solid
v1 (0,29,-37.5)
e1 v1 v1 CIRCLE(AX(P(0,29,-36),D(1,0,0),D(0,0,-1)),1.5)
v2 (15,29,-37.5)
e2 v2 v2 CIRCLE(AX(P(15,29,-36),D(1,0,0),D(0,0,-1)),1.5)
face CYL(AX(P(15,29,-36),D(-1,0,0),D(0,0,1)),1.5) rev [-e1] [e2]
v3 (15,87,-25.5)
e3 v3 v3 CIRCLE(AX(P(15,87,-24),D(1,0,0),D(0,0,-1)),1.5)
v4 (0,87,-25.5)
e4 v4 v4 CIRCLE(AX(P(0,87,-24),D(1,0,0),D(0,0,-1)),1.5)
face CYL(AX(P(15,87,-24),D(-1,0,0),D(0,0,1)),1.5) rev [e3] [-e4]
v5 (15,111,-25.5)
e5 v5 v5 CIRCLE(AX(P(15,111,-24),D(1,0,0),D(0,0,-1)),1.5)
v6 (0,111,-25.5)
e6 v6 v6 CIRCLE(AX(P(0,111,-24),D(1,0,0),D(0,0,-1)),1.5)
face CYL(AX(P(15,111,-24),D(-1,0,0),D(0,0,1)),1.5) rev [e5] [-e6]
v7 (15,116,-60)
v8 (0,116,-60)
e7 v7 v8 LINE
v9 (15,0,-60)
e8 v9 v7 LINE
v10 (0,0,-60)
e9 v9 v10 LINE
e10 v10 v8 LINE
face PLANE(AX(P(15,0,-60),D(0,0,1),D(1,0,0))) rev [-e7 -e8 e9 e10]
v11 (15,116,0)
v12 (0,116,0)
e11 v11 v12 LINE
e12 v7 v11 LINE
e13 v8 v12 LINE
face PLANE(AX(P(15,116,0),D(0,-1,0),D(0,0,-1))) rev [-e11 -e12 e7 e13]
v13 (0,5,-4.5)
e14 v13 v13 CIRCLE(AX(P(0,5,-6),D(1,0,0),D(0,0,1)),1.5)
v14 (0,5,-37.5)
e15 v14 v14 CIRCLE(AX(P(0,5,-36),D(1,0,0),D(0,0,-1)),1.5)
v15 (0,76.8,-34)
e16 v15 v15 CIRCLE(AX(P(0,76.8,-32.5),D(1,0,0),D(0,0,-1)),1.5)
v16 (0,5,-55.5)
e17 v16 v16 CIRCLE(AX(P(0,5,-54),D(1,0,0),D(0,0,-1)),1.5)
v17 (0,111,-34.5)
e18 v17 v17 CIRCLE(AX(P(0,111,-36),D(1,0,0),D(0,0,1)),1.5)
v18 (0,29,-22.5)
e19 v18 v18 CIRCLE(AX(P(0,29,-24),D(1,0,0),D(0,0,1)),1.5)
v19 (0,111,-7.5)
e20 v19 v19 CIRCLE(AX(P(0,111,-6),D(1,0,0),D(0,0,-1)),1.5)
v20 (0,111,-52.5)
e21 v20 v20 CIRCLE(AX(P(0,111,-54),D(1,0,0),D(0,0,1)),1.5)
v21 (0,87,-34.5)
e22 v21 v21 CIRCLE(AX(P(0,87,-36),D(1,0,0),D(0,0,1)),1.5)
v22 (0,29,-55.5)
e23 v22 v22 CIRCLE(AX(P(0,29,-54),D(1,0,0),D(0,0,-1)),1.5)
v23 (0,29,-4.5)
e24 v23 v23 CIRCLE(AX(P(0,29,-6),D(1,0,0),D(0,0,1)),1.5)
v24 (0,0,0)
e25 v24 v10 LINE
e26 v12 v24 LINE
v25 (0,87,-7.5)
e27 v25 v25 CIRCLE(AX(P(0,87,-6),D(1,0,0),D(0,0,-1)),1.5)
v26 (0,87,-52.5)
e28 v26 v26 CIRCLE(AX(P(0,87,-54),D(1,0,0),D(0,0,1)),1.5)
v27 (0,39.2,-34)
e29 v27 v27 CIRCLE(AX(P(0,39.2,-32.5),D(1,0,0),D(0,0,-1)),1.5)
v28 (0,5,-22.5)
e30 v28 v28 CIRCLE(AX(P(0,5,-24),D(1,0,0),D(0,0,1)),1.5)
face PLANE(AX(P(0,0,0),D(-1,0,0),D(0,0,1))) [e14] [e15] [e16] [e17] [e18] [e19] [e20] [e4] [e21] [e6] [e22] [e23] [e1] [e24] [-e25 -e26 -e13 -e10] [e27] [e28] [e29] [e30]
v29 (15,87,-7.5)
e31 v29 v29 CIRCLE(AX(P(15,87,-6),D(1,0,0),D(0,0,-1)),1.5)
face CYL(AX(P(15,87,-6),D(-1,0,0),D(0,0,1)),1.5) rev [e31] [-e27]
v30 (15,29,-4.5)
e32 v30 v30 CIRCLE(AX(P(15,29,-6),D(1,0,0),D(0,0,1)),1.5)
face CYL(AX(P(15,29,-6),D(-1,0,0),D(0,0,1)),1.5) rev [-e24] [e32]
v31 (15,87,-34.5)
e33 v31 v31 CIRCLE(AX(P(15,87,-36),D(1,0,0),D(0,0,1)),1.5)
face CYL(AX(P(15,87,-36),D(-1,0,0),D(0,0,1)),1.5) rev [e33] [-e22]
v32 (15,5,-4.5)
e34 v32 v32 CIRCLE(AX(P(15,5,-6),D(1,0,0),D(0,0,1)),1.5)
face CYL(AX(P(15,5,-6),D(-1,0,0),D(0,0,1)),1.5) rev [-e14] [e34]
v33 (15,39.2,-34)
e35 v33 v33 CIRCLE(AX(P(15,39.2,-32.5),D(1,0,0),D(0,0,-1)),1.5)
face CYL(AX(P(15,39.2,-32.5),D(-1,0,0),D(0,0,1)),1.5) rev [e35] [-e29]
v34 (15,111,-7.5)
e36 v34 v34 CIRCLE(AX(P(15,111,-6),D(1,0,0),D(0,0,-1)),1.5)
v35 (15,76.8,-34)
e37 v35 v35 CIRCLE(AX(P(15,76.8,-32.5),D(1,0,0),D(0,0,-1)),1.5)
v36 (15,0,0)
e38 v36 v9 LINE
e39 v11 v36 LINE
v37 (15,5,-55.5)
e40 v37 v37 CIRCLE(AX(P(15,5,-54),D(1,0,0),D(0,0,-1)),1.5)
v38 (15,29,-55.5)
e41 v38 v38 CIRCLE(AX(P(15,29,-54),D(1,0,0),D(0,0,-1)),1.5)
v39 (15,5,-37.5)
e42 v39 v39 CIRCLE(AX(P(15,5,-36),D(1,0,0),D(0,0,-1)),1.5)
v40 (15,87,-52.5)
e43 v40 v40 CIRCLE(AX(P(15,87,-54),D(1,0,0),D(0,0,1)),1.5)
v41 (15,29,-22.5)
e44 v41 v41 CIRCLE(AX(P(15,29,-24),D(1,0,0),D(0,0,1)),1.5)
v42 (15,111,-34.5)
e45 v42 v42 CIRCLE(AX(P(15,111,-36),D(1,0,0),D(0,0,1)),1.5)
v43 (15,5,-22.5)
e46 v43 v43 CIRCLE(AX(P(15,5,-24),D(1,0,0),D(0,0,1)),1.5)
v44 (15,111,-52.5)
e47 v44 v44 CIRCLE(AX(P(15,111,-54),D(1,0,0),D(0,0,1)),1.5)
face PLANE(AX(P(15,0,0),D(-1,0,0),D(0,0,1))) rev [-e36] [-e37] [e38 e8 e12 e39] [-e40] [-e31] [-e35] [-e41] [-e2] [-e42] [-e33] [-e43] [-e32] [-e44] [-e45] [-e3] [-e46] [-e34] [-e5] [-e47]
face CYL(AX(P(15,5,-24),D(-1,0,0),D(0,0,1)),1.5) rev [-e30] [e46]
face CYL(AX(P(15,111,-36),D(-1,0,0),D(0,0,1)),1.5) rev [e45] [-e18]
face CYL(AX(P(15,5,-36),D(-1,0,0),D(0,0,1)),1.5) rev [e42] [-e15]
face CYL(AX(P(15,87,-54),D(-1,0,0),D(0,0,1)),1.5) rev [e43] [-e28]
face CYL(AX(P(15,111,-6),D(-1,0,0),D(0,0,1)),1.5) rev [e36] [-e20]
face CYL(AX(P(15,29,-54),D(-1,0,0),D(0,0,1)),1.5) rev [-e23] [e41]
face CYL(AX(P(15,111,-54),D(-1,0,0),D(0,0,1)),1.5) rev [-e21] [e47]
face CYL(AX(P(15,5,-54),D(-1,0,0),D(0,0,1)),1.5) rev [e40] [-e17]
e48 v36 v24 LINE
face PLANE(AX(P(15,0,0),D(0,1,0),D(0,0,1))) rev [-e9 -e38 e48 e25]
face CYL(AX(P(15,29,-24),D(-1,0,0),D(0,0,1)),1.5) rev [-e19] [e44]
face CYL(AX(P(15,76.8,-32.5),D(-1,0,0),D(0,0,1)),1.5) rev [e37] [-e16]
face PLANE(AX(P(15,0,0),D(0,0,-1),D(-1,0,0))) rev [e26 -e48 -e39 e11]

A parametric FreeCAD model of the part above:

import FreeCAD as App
import Part
import Sketcher
Q = App.Units.Quantity


def add_polygon(sketch, points):
    """Adds a closed chain of lines whose ends are joined by coincident constraints."""
    first, n = sketch.GeometryCount, len(points)
    for a, b in zip(points, points[1:] + points[:1]):
        sketch.addGeometry(Part.LineSegment(App.Vector(*a, 0), App.Vector(*b, 0)), False)
    for i in range(n):
        sketch.addConstraint(Sketcher.Constraint("Coincident", first + i, 2, first + (i + 1) % n, 1))

doc = App.newDocument("Part")
body = doc.addObject("PartDesign::Body", "Body")

# Sketch on YZ plane
sketch1 = doc.addObject("Sketcher::SketchObject", "Sketch")
body.addObject(sketch1)
sketch1.AttachmentSupport = (doc.YZ_Plane, [""])
sketch1.MapMode = "FlatFace"
add_polygon(sketch1, [(116, 0), (0, 0), (0, -60), (116, -60)])  # lines 0-3
sketch1.addGeometry(Part.Circle(App.Vector(5, -6, 0), App.Vector(0, 0, 1), 1.5), False)  # 4
sketch1.addGeometry(Part.Circle(App.Vector(29, -6, 0), App.Vector(0, 0, 1), 1.5), False)  # 5
sketch1.addGeometry(Part.Circle(App.Vector(5, -24, 0), App.Vector(0, 0, 1), 1.5), False)  # 6
sketch1.addGeometry(Part.Circle(App.Vector(29, -24, 0), App.Vector(0, 0, 1), 1.5), False)  # 7
sketch1.addGeometry(Part.Circle(App.Vector(5, -36, 0), App.Vector(0, 0, 1), 1.5), False)  # 8
sketch1.addGeometry(Part.Circle(App.Vector(29, -36, 0), App.Vector(0, 0, 1), 1.5), False)  # 9
sketch1.addGeometry(Part.Circle(App.Vector(5, -54, 0), App.Vector(0, 0, 1), 1.5), False)  # 10
sketch1.addGeometry(Part.Circle(App.Vector(29, -54, 0), App.Vector(0, 0, 1), 1.5), False)  # 11
sketch1.addGeometry(Part.Circle(App.Vector(39.2, -32.5, 0), App.Vector(0, 0, 1), 1.5), False)  # 12
sketch1.addGeometry(Part.Circle(App.Vector(87, -6, 0), App.Vector(0, 0, 1), 1.5), False)  # 13
sketch1.addGeometry(Part.Circle(App.Vector(111, -6, 0), App.Vector(0, 0, 1), 1.5), False)  # 14
sketch1.addGeometry(Part.Circle(App.Vector(87, -24, 0), App.Vector(0, 0, 1), 1.5), False)  # 15
sketch1.addGeometry(Part.Circle(App.Vector(111, -24, 0), App.Vector(0, 0, 1), 1.5), False)  # 16
sketch1.addGeometry(Part.Circle(App.Vector(76.8, -32.5, 0), App.Vector(0, 0, 1), 1.5), False)  # 17
sketch1.addGeometry(Part.Circle(App.Vector(87, -36, 0), App.Vector(0, 0, 1), 1.5), False)  # 18
sketch1.addGeometry(Part.Circle(App.Vector(111, -36, 0), App.Vector(0, 0, 1), 1.5), False)  # 19
sketch1.addGeometry(Part.Circle(App.Vector(87, -54, 0), App.Vector(0, 0, 1), 1.5), False)  # 20
sketch1.addGeometry(Part.Circle(App.Vector(111, -54, 0), App.Vector(0, 0, 1), 1.5), False)  # 21
sketch1.addConstraint([
    Sketcher.Constraint("Horizontal", 0),
    Sketcher.Constraint("Vertical", 1),
    Sketcher.Constraint("Horizontal", 2),
    Sketcher.Constraint("Vertical", 3),
    Sketcher.Constraint("Coincident", 0, 2, -1, 1),
    Sketcher.Constraint("Equal", 4, 5),
    Sketcher.Constraint("Equal", 5, 6),
    Sketcher.Constraint("Equal", 6, 7),
    Sketcher.Constraint("Equal", 7, 8),
    Sketcher.Constraint("Equal", 8, 9),
    Sketcher.Constraint("Equal", 9, 10),
    Sketcher.Constraint("Equal", 10, 11),
    Sketcher.Constraint("Equal", 11, 12),
    Sketcher.Constraint("Equal", 12, 13),
    Sketcher.Constraint("Equal", 13, 14),
    Sketcher.Constraint("Equal", 14, 15),
    Sketcher.Constraint("Equal", 15, 16),
    Sketcher.Constraint("Equal", 16, 17),
    Sketcher.Constraint("Equal", 17, 18),
    Sketcher.Constraint("Equal", 18, 19),
    Sketcher.Constraint("Equal", 19, 20),
    Sketcher.Constraint("Equal", 20, 21),
    Sketcher.Constraint("Horizontal", 4, 3, 5, 3),
    Sketcher.Constraint("Horizontal", 6, 3, 7, 3),
    Sketcher.Constraint("Horizontal", 8, 3, 9, 3),
    Sketcher.Constraint("Horizontal", 10, 3, 11, 3),
    Sketcher.Constraint("Horizontal", 5, 3, 13, 3),
    Sketcher.Constraint("Horizontal", 13, 3, 14, 3),
    Sketcher.Constraint("Horizontal", 7, 3, 15, 3),
    Sketcher.Constraint("Horizontal", 15, 3, 16, 3),
    Sketcher.Constraint("Horizontal", 12, 3, 17, 3),
    Sketcher.Constraint("Horizontal", 9, 3, 18, 3),
    Sketcher.Constraint("Horizontal", 18, 3, 19, 3),
    Sketcher.Constraint("Horizontal", 11, 3, 20, 3),
    Sketcher.Constraint("Horizontal", 20, 3, 21, 3),
    Sketcher.Constraint("Vertical", 4, 3, 6, 3),
    Sketcher.Constraint("Vertical", 5, 3, 7, 3),
    Sketcher.Constraint("Vertical", 6, 3, 8, 3),
    Sketcher.Constraint("Vertical", 7, 3, 9, 3),
    Sketcher.Constraint("Vertical", 8, 3, 10, 3),
    Sketcher.Constraint("Vertical", 9, 3, 11, 3),
    Sketcher.Constraint("Vertical", 13, 3, 15, 3),
    Sketcher.Constraint("Vertical", 14, 3, 16, 3),
    Sketcher.Constraint("Vertical", 15, 3, 18, 3),
    Sketcher.Constraint("Vertical", 16, 3, 19, 3),
    Sketcher.Constraint("Vertical", 18, 3, 20, 3),
    Sketcher.Constraint("Vertical", 19, 3, 21, 3),
    Sketcher.Constraint("Diameter", 4, Q("3 mm")),
    Sketcher.Constraint("DistanceX", 0, 2, 0, 1, Q("116 mm")),
    Sketcher.Constraint("DistanceY", 1, 2, 1, 1, Q("60 mm")),
    Sketcher.Constraint("DistanceX", -1, 1, 4, 3, Q("5 mm")),
    Sketcher.Constraint("DistanceY", 4, 3, -1, 1, Q("6 mm")),
    Sketcher.Constraint("DistanceX", -1, 1, 5, 3, Q("29 mm")),
    Sketcher.Constraint("DistanceY", 6, 3, -1, 1, Q("24 mm")),
    Sketcher.Constraint("DistanceY", 8, 3, -1, 1, Q("36 mm")),
    Sketcher.Constraint("DistanceY", 10, 3, -1, 1, Q("54 mm")),
    Sketcher.Constraint("DistanceX", -1, 1, 13, 3, Q("87 mm")),
    Sketcher.Constraint("DistanceX", -1, 1, 14, 3, Q("111 mm")),
    Sketcher.Constraint("DistanceX", -1, 1, 12, 3, Q("39.2 mm")),
    Sketcher.Constraint("DistanceY", 12, 3, -1, 1, Q("32.5 mm")),
    Sketcher.Constraint("DistanceX", -1, 1, 17, 3, Q("76.8 mm")),
])
pad1 = doc.addObject("PartDesign::Pad", "Pad")
body.addObject(pad1)
pad1.Profile = sketch1
pad1.Length = 15

doc.recompute()
